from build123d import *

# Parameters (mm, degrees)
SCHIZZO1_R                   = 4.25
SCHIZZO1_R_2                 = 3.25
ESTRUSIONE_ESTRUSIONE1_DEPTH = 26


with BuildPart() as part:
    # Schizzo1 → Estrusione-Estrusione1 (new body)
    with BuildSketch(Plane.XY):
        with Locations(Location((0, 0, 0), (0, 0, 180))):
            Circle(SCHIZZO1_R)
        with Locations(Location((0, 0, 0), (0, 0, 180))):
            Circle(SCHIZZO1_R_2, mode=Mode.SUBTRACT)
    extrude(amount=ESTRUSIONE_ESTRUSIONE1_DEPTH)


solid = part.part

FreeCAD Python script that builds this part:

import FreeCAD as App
import Part
import Sketcher
from FreeCAD import Vector
Q = App.Units.Quantity

doc = App.newDocument("Part")
params = doc.addObject("Spreadsheet::Sheet", "Params")
for row, (alias, value) in enumerate([
    ("sketch1_diameter", "8.5 mm"),
    ("sketch1_diameter2", "6.5 mm"),
    ("pad1_length", "26 mm"),
], start=1):
    params.set(f"A{row}", alias)
    params.set(f"B{row}", "=" + value)
    params.setAlias(f"B{row}", alias)

body = doc.addObject("PartDesign::Body", "Body")

sketch1 = body.newObject("Sketcher::SketchObject", "Sketch")
sketch1.AttachmentSupport = (doc.getObject("XY_Plane"), [""])
sketch1.MapMode = "FlatFace"
sketch1.addGeometry(Part.Circle(Vector(0, 0, 0), Vector(0, 0, 1), 4.2), False)
sketch1.addGeometry(Part.Circle(Vector(0, 0, 0), Vector(0, 0, 1), 3.2), False)
sketch1.addConstraint(Sketcher.Constraint("Coincident", 0, 3, -1, 1))
sketch1.addConstraint(Sketcher.Constraint("Coincident", 1, 3, -1, 1))
sketch1.addConstraint(Sketcher.Constraint("Diameter", 0, Q("8.5 mm")))
sketch1.addConstraint(Sketcher.Constraint("Diameter", 1, Q("6.5 mm")))
sketch1.setExpression("Constraints[2]", "Params.sketch1_diameter")
sketch1.setExpression("Constraints[3]", "Params.sketch1_diameter2")
pad1 = body.newObject("PartDesign::Pad", "Pad")
pad1.Profile = sketch1
pad1.setExpression("Length", "Params.pad1_length")

doc.recompute()
